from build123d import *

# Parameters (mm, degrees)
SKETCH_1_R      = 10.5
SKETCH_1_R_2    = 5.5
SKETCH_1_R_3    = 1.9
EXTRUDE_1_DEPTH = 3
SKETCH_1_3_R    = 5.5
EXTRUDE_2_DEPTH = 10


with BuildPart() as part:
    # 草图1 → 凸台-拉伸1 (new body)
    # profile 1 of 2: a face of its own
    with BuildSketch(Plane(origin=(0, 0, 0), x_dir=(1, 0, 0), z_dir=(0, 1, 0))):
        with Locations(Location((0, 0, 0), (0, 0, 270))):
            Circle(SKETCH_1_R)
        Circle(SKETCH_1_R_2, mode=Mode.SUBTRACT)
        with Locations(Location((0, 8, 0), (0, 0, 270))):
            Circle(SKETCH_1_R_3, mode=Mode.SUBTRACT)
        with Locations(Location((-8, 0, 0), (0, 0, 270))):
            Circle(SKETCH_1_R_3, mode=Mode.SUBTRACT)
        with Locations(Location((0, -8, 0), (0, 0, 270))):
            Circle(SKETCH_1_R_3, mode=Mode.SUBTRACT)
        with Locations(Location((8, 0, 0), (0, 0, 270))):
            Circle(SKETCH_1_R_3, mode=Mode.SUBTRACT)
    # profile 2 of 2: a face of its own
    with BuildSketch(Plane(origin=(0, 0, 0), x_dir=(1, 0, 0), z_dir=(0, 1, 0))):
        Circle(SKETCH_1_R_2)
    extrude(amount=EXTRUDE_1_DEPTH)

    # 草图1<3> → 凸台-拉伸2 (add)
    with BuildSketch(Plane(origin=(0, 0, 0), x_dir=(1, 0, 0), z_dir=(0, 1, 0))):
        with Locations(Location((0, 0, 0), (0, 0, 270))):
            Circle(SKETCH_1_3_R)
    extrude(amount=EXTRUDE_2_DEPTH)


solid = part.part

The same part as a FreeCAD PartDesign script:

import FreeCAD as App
import Part
import Sketcher

V = App.Vector
Q = App.Units.Quantity

doc = App.newDocument("Part")
params = doc.addObject("Spreadsheet::Sheet", "Params")
for row, (alias, value) in enumerate([
    ("sketch1_diameter", "21 mm"),
    ("sketch1_diameter2", "3.8 mm"),
    ("pad1_length", "3 mm"),
    ("sketch2_diameter", "11 mm"),
    ("pad2_length", "10 mm"),
], start=1):
    params.set(f"A{row}", alias)
    params.set(f"B{row}", "=" + value)
    params.setAlias(f"B{row}", alias)

body = doc.addObject("PartDesign::Body", "Body")

sketch1 = body.newObject("Sketcher::SketchObject", "Sketch")
sketch1.AttachmentSupport = (doc.getObject("XZ_Plane"), [""])
sketch1.MapMode = "FlatFace"
sketch1.addGeometry([
    Part.Circle(V(0, 0, 0), V(0, 0, 1), 10.5),
    Part.Circle(V(0, -8, 0), V(0, 0, 1), 1.9),
    Part.Circle(V(-8, 0, 0), V(0, 0, 1), 1.9),
    Part.Circle(V(8, 0, 0), V(0, 0, 1), 1.9),
    Part.Circle(V(0, 8, 0), V(0, 0, 1), 1.9),
], False)
sketch1.addConstraint([
    Sketcher.Constraint("Coincident", 0, 3, -1, 1),
    Sketcher.Constraint("Equal", 1, 2),
    Sketcher.Constraint("Equal", 2, 3),
    Sketcher.Constraint("Equal", 3, 4),
    Sketcher.Constraint("Symmetric", 2, 3, 3, 3, -1, 1),
    Sketcher.Constraint("Symmetric", 1, 3, 4, 3, -1, 1),
    Sketcher.Constraint("PointOnObject", 1, 3, -2),
    Sketcher.Constraint("PointOnObject", 2, 3, -1),
    Sketcher.Constraint("Diameter", 0, Q("21 mm")),
    Sketcher.Constraint("Diameter", 1, Q("3.8 mm")),
    Sketcher.Constraint("DistanceY", 1, 3, -1, 1, Q("8 mm")),
    Sketcher.Constraint("DistanceX", 2, 3, -1, 1, Q("8 mm")),
])
sketch1.setExpression("Constraints[8]", "Params.sketch1_diameter")
sketch1.setExpression("Constraints[9]", "Params.sketch1_diameter2")
pad1 = body.newObject("PartDesign::Pad", "Pad")
pad1.Profile = sketch1
pad1.setExpression("Length", "Params.pad1_length")
pad1.Reversed = True

sketch2 = body.newObject("Sketcher::SketchObject", "Sketch001")
sketch2.AttachmentSupport = (doc.getObject("XZ_Plane"), [""])
sketch2.MapMode = "FlatFace"
sketch2.addGeometry(Part.Circle(V(0, 0, 0), V(0, 0, 1), 5.5), False)
sketch2.addConstraint([
    Sketcher.Constraint("Coincident", 0, 3, -1, 1),
    Sketcher.Constraint("Diameter", 0, Q("11 mm")),
])
sketch2.setExpression("Constraints[1]", "Params.sketch2_diameter")
pad2 = body.newObject("PartDesign::Pad", "Pad001")
pad2.Profile = sketch2
pad2.setExpression("Length", "Params.pad2_length")
pad2.Reversed = True

doc.recompute()
